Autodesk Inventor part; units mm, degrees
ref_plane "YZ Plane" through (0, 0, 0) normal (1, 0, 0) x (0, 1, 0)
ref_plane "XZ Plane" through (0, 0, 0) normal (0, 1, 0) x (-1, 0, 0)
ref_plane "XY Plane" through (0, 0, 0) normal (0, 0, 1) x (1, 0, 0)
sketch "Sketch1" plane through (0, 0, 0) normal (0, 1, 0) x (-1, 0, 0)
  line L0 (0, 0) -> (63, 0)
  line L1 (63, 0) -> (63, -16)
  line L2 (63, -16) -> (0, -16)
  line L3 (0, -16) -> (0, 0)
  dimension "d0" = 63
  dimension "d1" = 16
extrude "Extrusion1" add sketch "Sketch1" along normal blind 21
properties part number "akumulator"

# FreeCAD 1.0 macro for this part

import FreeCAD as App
import Part
import Sketcher

V = App.Vector

doc = App.newDocument("Part")
body = doc.addObject("PartDesign::Body", "Body")

# Sketch on XZ plane
sketch1 = body.newObject("Sketcher::SketchObject", "Sketch")
sketch1.AttachmentSupport = (doc.getObject("XZ_Plane"), [""])
sketch1.MapMode = "FlatFace"
sketch1.addGeometry(Part.LineSegment(V(-63, 0, 0), V(0, 0, 0)), False)
sketch1.addGeometry(Part.LineSegment(V(0, 0, 0), V(0, -16, 0)), False)
sketch1.addGeometry(Part.LineSegment(V(0, -16, 0), V(-63, -16, 0)), False)
sketch1.addGeometry(Part.LineSegment(V(-63, -16, 0), V(-63, 0, 0)), False)
sketch1.addConstraint(Sketcher.Constraint("Coincident", 0, 2, 1, 1))
sketch1.addConstraint(Sketcher.Constraint("Coincident", 1, 2, 2, 1))
sketch1.addConstraint(Sketcher.Constraint("Coincident", 2, 2, 3, 1))
sketch1.addConstraint(Sketcher.Constraint("Coincident", 3, 2, 0, 1))
sketch1.addConstraint(Sketcher.Constraint("Horizontal", 0))
sketch1.addConstraint(Sketcher.Constraint("Vertical", 1))
sketch1.addConstraint(Sketcher.Constraint("Horizontal", 2))
sketch1.addConstraint(Sketcher.Constraint("Vertical", 3))
sketch1.addConstraint(Sketcher.Constraint("Coincident", 0, 2, -1, 1))
sketch1.addConstraint(Sketcher.Constraint("DistanceX", 0, 1, 0, 2, 63.0))
sketch1.addConstraint(Sketcher.Constraint("DistanceY", 1, 2, 1, 1, 16.0))
pad1 = body.newObject("PartDesign::Pad", "Pad")
pad1.Profile = sketch1
pad1.Length = 21
pad1.Reversed = True

doc.recompute()
